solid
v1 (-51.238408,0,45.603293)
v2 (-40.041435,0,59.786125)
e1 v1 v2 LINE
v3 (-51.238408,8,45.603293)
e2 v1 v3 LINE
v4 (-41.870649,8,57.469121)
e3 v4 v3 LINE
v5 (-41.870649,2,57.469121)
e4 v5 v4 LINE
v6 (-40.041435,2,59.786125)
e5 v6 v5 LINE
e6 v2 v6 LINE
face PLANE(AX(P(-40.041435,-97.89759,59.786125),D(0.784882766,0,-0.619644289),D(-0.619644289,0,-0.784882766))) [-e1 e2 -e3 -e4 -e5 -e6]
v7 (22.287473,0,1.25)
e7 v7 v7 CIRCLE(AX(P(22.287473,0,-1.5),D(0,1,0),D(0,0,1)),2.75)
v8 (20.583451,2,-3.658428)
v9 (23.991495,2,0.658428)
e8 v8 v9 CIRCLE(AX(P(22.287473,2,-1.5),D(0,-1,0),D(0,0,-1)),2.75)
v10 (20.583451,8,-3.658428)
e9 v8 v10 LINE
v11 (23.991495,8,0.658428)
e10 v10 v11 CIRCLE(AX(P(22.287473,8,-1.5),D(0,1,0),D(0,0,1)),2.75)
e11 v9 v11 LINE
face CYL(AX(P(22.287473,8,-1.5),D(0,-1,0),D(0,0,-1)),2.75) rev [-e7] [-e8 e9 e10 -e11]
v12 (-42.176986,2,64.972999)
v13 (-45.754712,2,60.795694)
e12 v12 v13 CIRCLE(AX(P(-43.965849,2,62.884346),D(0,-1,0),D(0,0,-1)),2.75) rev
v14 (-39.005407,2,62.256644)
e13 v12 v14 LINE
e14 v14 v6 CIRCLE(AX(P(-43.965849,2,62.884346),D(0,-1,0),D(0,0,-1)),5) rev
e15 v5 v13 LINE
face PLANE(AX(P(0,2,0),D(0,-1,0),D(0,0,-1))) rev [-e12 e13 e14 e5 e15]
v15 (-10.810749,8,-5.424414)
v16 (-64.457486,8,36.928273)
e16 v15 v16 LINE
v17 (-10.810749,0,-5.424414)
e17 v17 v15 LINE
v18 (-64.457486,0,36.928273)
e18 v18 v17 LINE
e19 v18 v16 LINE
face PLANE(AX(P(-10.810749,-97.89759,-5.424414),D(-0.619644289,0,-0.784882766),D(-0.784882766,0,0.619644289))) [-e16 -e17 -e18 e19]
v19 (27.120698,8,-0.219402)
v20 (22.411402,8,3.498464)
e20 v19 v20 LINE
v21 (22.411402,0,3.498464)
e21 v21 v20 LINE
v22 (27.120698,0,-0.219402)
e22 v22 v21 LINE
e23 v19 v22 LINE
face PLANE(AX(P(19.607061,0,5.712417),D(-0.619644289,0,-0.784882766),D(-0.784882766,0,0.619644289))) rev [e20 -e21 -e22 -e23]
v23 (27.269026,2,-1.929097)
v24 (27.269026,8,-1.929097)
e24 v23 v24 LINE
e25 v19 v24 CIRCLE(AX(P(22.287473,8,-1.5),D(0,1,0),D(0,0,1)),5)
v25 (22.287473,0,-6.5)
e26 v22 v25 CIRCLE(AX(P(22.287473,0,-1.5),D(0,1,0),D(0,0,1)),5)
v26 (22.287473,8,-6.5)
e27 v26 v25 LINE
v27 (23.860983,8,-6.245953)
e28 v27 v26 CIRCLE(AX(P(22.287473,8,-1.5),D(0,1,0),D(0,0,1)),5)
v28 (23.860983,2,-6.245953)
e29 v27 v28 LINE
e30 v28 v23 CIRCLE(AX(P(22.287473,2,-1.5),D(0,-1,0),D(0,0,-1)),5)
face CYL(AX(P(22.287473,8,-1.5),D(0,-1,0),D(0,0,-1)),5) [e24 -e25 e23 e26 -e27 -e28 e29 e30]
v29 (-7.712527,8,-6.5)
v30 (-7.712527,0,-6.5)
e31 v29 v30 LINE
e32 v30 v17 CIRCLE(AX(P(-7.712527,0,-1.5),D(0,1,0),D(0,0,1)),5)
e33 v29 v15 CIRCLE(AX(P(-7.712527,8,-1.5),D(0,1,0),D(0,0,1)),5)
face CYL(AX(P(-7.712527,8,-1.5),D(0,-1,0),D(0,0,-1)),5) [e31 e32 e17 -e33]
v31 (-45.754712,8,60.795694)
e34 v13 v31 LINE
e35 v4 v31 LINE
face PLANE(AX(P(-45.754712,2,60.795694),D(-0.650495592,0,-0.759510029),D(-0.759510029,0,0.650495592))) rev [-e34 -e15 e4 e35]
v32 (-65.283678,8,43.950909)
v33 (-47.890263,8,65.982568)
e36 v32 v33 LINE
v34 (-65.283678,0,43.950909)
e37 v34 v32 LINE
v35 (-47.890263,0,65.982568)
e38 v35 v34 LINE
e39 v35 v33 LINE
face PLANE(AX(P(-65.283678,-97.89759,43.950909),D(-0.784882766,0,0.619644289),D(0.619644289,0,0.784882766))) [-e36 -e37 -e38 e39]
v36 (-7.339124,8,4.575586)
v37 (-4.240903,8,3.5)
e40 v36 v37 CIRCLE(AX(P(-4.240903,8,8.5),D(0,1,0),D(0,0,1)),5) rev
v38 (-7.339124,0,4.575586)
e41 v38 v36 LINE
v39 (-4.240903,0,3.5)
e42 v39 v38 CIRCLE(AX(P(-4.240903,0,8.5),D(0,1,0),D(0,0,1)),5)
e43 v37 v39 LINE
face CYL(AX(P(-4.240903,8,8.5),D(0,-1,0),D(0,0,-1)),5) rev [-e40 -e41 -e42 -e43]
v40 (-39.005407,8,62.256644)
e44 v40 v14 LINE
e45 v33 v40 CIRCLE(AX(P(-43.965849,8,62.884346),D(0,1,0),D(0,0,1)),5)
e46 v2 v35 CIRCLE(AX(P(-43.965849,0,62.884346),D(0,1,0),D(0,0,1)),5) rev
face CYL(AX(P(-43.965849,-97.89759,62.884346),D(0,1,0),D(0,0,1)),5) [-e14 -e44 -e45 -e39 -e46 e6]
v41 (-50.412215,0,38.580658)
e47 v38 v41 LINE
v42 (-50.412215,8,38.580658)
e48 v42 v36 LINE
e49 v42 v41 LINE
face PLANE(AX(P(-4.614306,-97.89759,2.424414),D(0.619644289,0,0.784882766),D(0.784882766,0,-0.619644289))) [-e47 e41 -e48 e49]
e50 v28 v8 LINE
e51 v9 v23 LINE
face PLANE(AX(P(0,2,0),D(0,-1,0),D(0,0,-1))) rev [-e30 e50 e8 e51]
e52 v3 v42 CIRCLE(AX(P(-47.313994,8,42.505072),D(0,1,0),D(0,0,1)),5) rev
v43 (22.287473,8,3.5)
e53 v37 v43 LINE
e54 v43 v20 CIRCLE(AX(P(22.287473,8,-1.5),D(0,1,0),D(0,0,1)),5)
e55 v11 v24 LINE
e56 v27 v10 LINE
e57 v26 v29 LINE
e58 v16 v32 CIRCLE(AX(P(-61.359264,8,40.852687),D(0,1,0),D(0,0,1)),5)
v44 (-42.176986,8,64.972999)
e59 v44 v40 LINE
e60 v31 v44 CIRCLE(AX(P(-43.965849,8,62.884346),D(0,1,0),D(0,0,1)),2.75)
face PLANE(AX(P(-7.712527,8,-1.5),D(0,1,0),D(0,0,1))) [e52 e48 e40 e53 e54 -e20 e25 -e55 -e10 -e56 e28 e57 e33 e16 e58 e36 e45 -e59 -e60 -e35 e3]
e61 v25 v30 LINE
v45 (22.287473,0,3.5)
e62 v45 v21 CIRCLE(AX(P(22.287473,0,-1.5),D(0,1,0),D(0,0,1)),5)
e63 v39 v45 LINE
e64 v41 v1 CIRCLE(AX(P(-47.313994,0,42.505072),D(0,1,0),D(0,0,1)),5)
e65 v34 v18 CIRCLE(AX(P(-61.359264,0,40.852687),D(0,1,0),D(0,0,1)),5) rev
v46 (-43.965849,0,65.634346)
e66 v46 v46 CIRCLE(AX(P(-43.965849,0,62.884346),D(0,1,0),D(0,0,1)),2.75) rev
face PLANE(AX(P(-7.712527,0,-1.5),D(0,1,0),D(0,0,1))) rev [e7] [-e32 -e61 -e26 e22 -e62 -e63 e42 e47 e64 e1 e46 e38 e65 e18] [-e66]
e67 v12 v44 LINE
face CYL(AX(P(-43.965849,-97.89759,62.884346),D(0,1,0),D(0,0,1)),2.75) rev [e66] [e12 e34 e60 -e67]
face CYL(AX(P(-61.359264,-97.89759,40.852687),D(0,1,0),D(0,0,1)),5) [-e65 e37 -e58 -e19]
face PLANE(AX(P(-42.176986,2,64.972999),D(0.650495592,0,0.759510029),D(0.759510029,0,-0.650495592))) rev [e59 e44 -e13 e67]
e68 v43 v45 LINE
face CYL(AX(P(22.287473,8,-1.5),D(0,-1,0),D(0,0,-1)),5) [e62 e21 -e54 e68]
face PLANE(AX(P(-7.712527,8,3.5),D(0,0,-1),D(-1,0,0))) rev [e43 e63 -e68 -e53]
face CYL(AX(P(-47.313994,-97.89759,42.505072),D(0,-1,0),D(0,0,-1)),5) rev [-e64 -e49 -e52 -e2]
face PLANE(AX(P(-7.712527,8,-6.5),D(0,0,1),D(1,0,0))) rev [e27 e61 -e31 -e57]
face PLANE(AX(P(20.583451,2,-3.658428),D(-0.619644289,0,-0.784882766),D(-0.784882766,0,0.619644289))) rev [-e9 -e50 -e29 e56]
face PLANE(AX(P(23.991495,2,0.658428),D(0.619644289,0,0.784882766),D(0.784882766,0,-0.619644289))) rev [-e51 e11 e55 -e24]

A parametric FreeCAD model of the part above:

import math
import FreeCAD as App
import Part
import Sketcher

V = App.Vector
Q = App.Units.Quantity


def edges_at(feature, points):
    """Names of the edges that pass closest to the given points."""
    edges = feature.Shape.Edges
    near = lambda p: min(range(len(edges)), key=lambda i: edges[i].distToShape(Part.Vertex(*p))[0])
    return sorted({f"Edge{near(p) + 1}" for p in points})


def add_polygon(sketch, points):
    """Adds a closed chain of lines whose ends are joined by coincident constraints."""
    first, n = sketch.GeometryCount, len(points)
    for a, b in zip(points, points[1:] + points[:1]):
        sketch.addGeometry(Part.LineSegment(App.Vector(*a, 0), App.Vector(*b, 0)), False)
    for i in range(n):
        sketch.addConstraint(Sketcher.Constraint("Coincident", first + i, 2, first + (i + 1) % n, 1))

doc = App.newDocument("Part")
body = doc.addObject("PartDesign::Body", "Body")

# Sketch on XZ plane
sketch1 = doc.addObject("Sketcher::SketchObject", "Sketch")
body.addObject(sketch1)
sketch1.AttachmentSupport = (doc.XZ_Plane, [""])
sketch1.MapMode = "FlatFace"
sketch1.addGeometry(Part.LineSegment(V(22.3, -6.5, 0), V(-7.7, -6.5, 0)), False)
sketch1.addGeometry(Part.ArcOfCircle(Part.Circle(V(-7.7, -1.5, 0), V(0, 0, 1), 5), math.radians(90), math.radians(270)), False)
sketch1.addGeometry(Part.LineSegment(V(-7.7, 3.5, 0), V(22.3, 3.5, 0)), False)
sketch1.addGeometry(Part.ArcOfCircle(Part.Circle(V(22.3, -1.5, 0), V(0, 0, 1), 5), math.radians(-90), math.radians(90)), False)
sketch1.addGeometry(Part.Circle(V(22.3, -1.5, 0), V(0, 0, 1), 2.8), False)
sketch1.addConstraint(Sketcher.Constraint("Tangent", 0, 2, 1, 2))
sketch1.addConstraint(Sketcher.Constraint("Tangent", 1, 1, 2, 1))
sketch1.addConstraint(Sketcher.Constraint("Tangent", 2, 2, 3, 2))
sketch1.addConstraint(Sketcher.Constraint("Tangent", 3, 1, 0, 1))
sketch1.addConstraint(Sketcher.Constraint("Horizontal", 0))
sketch1.addConstraint(Sketcher.Constraint("Horizontal", 2))
sketch1.addConstraint(Sketcher.Constraint("Coincident", 4, 3, 3, 3))
sketch1.addConstraint(Sketcher.Constraint("Radius", 1, Q("5 mm")))
sketch1.addConstraint(Sketcher.Constraint("Diameter", 4, Q("5.5 mm")))
sketch1.addConstraint(Sketcher.Constraint("DistanceX", 0, 2, 0, 1, Q("30 mm")))
sketch1.addConstraint(Sketcher.Constraint("DistanceY", 1, 3, -1, 1, Q("1.5 mm")))
sketch1.addConstraint(Sketcher.Constraint("DistanceX", 1, 3, -1, 1, Q("7.712527 mm")))
pad1 = doc.addObject("PartDesign::Pad", "Pad")
body.addObject(pad1)
pad1.Profile = sketch1
pad1.Length = 8
pad1.Reversed = True

# Sketch on XZ plane
sketch2 = doc.addObject("Sketcher::SketchObject", "Sketch001")
body.addObject(sketch2)
sketch2.AttachmentSupport = (doc.XZ_Plane, [""])
sketch2.MapMode = "FlatFace"
sketch2.AttachmentOffset = App.Placement(V(0, 0, -8), App.Rotation())
add_polygon(sketch2, [(21, -4), (24, 1), (34, -7), (31, -11)])  # lines 0-3
sketch2.addConstraint(Sketcher.Constraint("Perpendicular", 0, 1))
sketch2.addConstraint(Sketcher.Constraint("Perpendicular", 1, 2))
sketch2.addConstraint(Sketcher.Constraint("Perpendicular", 2, 3))
sketch2.addConstraint(Sketcher.Constraint("Distance", 0, Q("5.5 mm")))
sketch2.addConstraint(Sketcher.Constraint("DistanceY", 2, 2, 0, 2, Q("12.157 mm")))
sketch2.addConstraint(Sketcher.Constraint("DistanceX", -1, 1, 2, 2, Q("30.514301 mm")))
sketch2.addConstraint(Sketcher.Constraint("DistanceX", -1, 1, 3, 2, Q("20.583451 mm")))
sketch2.addConstraint(Sketcher.Constraint("DistanceY", -1, 1, 0, 2, Q("0.658428 mm")))
pocket1 = doc.addObject("PartDesign::Pocket", "Pocket")
body.addObject(pocket1)
pocket1.Profile = sketch2
pocket1.Length = 6
pocket1.Reversed = True

# Sketch on XZ plane
sketch3 = doc.addObject("Sketcher::SketchObject", "Sketch002")
body.addObject(sketch3)
sketch3.AttachmentSupport = (doc.XZ_Plane, [""])
sketch3.MapMode = "FlatFace"
sketch3.AttachmentOffset = App.Placement(V(0, 0, -8), App.Rotation())
add_polygon(sketch3, [(19.6, 5.7), (21.9, 8.6), (34.1, -1.1), (31.8, -3.9)])  # lines 0-3
sketch3.addConstraint(Sketcher.Constraint("Perpendicular", 0, 1))
sketch3.addConstraint(Sketcher.Constraint("Perpendicular", 1, 2))
sketch3.addConstraint(Sketcher.Constraint("Perpendicular", 2, 3))
sketch3.addConstraint(Sketcher.Constraint("DistanceX", -1, 1, 2, 2, Q("31.818611 mm")))
sketch3.addConstraint(Sketcher.Constraint("DistanceY", 2, 2, -1, 1, Q("3.92828 mm")))
sketch3.addConstraint(Sketcher.Constraint("DistanceX", -1, 1, 3, 2, Q("19.607061 mm")))
sketch3.addConstraint(Sketcher.Constraint("DistanceX", 2, 2, 1, 2, Q("2.261792 mm")))
sketch3.addConstraint(Sketcher.Constraint("DistanceY", 1, 2, 3, 2, Q("6.775761 mm")))
pocket2 = doc.addObject("PartDesign::Pocket", "Pocket001")
body.addObject(pocket2)
pocket2.Profile = sketch3
pocket2.Type = "ThroughAll"
pocket2.Reversed = True

# Sketch on XZ plane
sketch4 = doc.addObject("Sketcher::SketchObject", "Sketch003")
body.addObject(sketch4)
sketch4.AttachmentSupport = (doc.XZ_Plane, [""])
sketch4.MapMode = "FlatFace"
sketch4.addGeometry(Part.LineSegment(V(-54.3, 41.7, 0), V(-4.6, 2.4, 0)), False)
sketch4.addGeometry(Part.ArcOfCircle(Part.Circle(V(-7.7, -1.5, 0), V(0, 0, 1), 5), math.radians(-128), math.radians(52)), False)
sketch4.addGeometry(Part.LineSegment(V(-10.8, -5.4, 0), V(-64.5, 36.9, 0)), False)
sketch4.addGeometry(Part.ArcOfCircle(Part.Circle(V(-61.4, 40.9, 0), V(0, 0, 1), 5), math.radians(142), math.radians(232)), False)
sketch4.addGeometry(Part.LineSegment(V(-65.3, 44, 0), V(-47.9, 66, 0)), False)
sketch4.addGeometry(Part.ArcOfCircle(Part.Circle(V(-44, 62.9, 0), V(0, 0, 1), 5), math.radians(-38), math.radians(142)), False)
sketch4.addGeometry(Part.LineSegment(V(-40, 59.8, 0), V(-54.3, 41.7, 0)), False)
sketch4.addGeometry(Part.Circle(V(-44, 62.9, 0), V(0, 0, 1), 2.8), False)
sketch4.addConstraint(Sketcher.Constraint("Tangent", 0, 2, 1, 2))
sketch4.addConstraint(Sketcher.Constraint("Tangent", 1, 1, 2, 1))
sketch4.addConstraint(Sketcher.Constraint("Tangent", 2, 2, 3, 2))
sketch4.addConstraint(Sketcher.Constraint("Tangent", 3, 1, 4, 1))
sketch4.addConstraint(Sketcher.Constraint("Tangent", 4, 2, 5, 2))
sketch4.addConstraint(Sketcher.Constraint("Tangent", 5, 1, 6, 1))
sketch4.addConstraint(Sketcher.Constraint("Coincident", 6, 2, 0, 1))
sketch4.addConstraint(Sketcher.Constraint("Coincident", 7, 3, 5, 3))
sketch4.addConstraint(Sketcher.Constraint("Equal", 1, 3))
sketch4.addConstraint(Sketcher.Constraint("Equal", 3, 5))
sketch4.addConstraint(Sketcher.Constraint("Parallel", 0, 2))
sketch4.addConstraint(Sketcher.Constraint("Perpendicular", 2, 4))
sketch4.addConstraint(Sketcher.Constraint("Parallel", 4, 6))
sketch4.addConstraint(Sketcher.Constraint("Radius", 1, Q("5 mm")))
sketch4.addConstraint(Sketcher.Constraint("Diameter", 7, Q("5.5 mm")))
sketch4.addConstraint(Sketcher.Constraint("DistanceY", 1, 3, -1, 1, Q("1.5 mm")))
sketch4.addConstraint(Sketcher.Constraint("Distance", 0, Q("63.35 mm")))
sketch4.addConstraint(Sketcher.Constraint("Distance", 4, Q("28.07 mm")))
sketch4.addConstraint(Sketcher.Constraint("DistanceX", 3, 3, 4, 2, Q("13.469001 mm")))
sketch4.addConstraint(Sketcher.Constraint("DistanceX", 5, 3, -1, 1, Q("43.965849 mm")))
pad2 = doc.addObject("PartDesign::Pad", "Pad001")
body.addObject(pad2)
pad2.Profile = sketch4
pad2.Length = 8
pad2.Reversed = True

# Sketch on XZ plane
sketch5 = doc.addObject("Sketcher::SketchObject", "Sketch004")
body.addObject(sketch5)
sketch5.AttachmentSupport = (doc.XZ_Plane, [""])
sketch5.MapMode = "FlatFace"
sketch5.AttachmentOffset = App.Placement(V(0, 0, -8), App.Rotation())
add_polygon(sketch5, [(-46, 61), (-42, 65), (-33, 57), (-36, 53)])  # lines 0-3
sketch5.addConstraint(Sketcher.Constraint("Perpendicular", 0, 1))
sketch5.addConstraint(Sketcher.Constraint("Perpendicular", 1, 2))
sketch5.addConstraint(Sketcher.Constraint("Perpendicular", 2, 3))
sketch5.addConstraint(Sketcher.Constraint("Distance", 0, Q("5.5 mm")))
sketch5.addConstraint(Sketcher.Constraint("DistanceY", -1, 1, 0, 2, Q("64.972999 mm")))
sketch5.addConstraint(Sketcher.Constraint("Distance", 1, Q("12.45398 mm")))
sketch5.addConstraint(Sketcher.Constraint("DistanceY", -1, 1, 1, 2, Q("56.87174 mm")))
sketch5.addConstraint(Sketcher.Constraint("DistanceX", 2, 2, -1, 1, Q("36.295789 mm")))
pocket3 = doc.addObject("PartDesign::Pocket", "Pocket002")
body.addObject(pocket3)
pocket3.Profile = sketch5
pocket3.Length = 6
pocket3.Reversed = True
doc.recompute()

fillet = doc.addObject("PartDesign::Fillet", "Fillet")
body.addObject(fillet)
fillet.Base = (pocket3, edges_at(pocket3, [(-5.977, 4, 3.5), (-54.337, 4, 41.679)]))
fillet.Radius = 5

doc.recompute()
